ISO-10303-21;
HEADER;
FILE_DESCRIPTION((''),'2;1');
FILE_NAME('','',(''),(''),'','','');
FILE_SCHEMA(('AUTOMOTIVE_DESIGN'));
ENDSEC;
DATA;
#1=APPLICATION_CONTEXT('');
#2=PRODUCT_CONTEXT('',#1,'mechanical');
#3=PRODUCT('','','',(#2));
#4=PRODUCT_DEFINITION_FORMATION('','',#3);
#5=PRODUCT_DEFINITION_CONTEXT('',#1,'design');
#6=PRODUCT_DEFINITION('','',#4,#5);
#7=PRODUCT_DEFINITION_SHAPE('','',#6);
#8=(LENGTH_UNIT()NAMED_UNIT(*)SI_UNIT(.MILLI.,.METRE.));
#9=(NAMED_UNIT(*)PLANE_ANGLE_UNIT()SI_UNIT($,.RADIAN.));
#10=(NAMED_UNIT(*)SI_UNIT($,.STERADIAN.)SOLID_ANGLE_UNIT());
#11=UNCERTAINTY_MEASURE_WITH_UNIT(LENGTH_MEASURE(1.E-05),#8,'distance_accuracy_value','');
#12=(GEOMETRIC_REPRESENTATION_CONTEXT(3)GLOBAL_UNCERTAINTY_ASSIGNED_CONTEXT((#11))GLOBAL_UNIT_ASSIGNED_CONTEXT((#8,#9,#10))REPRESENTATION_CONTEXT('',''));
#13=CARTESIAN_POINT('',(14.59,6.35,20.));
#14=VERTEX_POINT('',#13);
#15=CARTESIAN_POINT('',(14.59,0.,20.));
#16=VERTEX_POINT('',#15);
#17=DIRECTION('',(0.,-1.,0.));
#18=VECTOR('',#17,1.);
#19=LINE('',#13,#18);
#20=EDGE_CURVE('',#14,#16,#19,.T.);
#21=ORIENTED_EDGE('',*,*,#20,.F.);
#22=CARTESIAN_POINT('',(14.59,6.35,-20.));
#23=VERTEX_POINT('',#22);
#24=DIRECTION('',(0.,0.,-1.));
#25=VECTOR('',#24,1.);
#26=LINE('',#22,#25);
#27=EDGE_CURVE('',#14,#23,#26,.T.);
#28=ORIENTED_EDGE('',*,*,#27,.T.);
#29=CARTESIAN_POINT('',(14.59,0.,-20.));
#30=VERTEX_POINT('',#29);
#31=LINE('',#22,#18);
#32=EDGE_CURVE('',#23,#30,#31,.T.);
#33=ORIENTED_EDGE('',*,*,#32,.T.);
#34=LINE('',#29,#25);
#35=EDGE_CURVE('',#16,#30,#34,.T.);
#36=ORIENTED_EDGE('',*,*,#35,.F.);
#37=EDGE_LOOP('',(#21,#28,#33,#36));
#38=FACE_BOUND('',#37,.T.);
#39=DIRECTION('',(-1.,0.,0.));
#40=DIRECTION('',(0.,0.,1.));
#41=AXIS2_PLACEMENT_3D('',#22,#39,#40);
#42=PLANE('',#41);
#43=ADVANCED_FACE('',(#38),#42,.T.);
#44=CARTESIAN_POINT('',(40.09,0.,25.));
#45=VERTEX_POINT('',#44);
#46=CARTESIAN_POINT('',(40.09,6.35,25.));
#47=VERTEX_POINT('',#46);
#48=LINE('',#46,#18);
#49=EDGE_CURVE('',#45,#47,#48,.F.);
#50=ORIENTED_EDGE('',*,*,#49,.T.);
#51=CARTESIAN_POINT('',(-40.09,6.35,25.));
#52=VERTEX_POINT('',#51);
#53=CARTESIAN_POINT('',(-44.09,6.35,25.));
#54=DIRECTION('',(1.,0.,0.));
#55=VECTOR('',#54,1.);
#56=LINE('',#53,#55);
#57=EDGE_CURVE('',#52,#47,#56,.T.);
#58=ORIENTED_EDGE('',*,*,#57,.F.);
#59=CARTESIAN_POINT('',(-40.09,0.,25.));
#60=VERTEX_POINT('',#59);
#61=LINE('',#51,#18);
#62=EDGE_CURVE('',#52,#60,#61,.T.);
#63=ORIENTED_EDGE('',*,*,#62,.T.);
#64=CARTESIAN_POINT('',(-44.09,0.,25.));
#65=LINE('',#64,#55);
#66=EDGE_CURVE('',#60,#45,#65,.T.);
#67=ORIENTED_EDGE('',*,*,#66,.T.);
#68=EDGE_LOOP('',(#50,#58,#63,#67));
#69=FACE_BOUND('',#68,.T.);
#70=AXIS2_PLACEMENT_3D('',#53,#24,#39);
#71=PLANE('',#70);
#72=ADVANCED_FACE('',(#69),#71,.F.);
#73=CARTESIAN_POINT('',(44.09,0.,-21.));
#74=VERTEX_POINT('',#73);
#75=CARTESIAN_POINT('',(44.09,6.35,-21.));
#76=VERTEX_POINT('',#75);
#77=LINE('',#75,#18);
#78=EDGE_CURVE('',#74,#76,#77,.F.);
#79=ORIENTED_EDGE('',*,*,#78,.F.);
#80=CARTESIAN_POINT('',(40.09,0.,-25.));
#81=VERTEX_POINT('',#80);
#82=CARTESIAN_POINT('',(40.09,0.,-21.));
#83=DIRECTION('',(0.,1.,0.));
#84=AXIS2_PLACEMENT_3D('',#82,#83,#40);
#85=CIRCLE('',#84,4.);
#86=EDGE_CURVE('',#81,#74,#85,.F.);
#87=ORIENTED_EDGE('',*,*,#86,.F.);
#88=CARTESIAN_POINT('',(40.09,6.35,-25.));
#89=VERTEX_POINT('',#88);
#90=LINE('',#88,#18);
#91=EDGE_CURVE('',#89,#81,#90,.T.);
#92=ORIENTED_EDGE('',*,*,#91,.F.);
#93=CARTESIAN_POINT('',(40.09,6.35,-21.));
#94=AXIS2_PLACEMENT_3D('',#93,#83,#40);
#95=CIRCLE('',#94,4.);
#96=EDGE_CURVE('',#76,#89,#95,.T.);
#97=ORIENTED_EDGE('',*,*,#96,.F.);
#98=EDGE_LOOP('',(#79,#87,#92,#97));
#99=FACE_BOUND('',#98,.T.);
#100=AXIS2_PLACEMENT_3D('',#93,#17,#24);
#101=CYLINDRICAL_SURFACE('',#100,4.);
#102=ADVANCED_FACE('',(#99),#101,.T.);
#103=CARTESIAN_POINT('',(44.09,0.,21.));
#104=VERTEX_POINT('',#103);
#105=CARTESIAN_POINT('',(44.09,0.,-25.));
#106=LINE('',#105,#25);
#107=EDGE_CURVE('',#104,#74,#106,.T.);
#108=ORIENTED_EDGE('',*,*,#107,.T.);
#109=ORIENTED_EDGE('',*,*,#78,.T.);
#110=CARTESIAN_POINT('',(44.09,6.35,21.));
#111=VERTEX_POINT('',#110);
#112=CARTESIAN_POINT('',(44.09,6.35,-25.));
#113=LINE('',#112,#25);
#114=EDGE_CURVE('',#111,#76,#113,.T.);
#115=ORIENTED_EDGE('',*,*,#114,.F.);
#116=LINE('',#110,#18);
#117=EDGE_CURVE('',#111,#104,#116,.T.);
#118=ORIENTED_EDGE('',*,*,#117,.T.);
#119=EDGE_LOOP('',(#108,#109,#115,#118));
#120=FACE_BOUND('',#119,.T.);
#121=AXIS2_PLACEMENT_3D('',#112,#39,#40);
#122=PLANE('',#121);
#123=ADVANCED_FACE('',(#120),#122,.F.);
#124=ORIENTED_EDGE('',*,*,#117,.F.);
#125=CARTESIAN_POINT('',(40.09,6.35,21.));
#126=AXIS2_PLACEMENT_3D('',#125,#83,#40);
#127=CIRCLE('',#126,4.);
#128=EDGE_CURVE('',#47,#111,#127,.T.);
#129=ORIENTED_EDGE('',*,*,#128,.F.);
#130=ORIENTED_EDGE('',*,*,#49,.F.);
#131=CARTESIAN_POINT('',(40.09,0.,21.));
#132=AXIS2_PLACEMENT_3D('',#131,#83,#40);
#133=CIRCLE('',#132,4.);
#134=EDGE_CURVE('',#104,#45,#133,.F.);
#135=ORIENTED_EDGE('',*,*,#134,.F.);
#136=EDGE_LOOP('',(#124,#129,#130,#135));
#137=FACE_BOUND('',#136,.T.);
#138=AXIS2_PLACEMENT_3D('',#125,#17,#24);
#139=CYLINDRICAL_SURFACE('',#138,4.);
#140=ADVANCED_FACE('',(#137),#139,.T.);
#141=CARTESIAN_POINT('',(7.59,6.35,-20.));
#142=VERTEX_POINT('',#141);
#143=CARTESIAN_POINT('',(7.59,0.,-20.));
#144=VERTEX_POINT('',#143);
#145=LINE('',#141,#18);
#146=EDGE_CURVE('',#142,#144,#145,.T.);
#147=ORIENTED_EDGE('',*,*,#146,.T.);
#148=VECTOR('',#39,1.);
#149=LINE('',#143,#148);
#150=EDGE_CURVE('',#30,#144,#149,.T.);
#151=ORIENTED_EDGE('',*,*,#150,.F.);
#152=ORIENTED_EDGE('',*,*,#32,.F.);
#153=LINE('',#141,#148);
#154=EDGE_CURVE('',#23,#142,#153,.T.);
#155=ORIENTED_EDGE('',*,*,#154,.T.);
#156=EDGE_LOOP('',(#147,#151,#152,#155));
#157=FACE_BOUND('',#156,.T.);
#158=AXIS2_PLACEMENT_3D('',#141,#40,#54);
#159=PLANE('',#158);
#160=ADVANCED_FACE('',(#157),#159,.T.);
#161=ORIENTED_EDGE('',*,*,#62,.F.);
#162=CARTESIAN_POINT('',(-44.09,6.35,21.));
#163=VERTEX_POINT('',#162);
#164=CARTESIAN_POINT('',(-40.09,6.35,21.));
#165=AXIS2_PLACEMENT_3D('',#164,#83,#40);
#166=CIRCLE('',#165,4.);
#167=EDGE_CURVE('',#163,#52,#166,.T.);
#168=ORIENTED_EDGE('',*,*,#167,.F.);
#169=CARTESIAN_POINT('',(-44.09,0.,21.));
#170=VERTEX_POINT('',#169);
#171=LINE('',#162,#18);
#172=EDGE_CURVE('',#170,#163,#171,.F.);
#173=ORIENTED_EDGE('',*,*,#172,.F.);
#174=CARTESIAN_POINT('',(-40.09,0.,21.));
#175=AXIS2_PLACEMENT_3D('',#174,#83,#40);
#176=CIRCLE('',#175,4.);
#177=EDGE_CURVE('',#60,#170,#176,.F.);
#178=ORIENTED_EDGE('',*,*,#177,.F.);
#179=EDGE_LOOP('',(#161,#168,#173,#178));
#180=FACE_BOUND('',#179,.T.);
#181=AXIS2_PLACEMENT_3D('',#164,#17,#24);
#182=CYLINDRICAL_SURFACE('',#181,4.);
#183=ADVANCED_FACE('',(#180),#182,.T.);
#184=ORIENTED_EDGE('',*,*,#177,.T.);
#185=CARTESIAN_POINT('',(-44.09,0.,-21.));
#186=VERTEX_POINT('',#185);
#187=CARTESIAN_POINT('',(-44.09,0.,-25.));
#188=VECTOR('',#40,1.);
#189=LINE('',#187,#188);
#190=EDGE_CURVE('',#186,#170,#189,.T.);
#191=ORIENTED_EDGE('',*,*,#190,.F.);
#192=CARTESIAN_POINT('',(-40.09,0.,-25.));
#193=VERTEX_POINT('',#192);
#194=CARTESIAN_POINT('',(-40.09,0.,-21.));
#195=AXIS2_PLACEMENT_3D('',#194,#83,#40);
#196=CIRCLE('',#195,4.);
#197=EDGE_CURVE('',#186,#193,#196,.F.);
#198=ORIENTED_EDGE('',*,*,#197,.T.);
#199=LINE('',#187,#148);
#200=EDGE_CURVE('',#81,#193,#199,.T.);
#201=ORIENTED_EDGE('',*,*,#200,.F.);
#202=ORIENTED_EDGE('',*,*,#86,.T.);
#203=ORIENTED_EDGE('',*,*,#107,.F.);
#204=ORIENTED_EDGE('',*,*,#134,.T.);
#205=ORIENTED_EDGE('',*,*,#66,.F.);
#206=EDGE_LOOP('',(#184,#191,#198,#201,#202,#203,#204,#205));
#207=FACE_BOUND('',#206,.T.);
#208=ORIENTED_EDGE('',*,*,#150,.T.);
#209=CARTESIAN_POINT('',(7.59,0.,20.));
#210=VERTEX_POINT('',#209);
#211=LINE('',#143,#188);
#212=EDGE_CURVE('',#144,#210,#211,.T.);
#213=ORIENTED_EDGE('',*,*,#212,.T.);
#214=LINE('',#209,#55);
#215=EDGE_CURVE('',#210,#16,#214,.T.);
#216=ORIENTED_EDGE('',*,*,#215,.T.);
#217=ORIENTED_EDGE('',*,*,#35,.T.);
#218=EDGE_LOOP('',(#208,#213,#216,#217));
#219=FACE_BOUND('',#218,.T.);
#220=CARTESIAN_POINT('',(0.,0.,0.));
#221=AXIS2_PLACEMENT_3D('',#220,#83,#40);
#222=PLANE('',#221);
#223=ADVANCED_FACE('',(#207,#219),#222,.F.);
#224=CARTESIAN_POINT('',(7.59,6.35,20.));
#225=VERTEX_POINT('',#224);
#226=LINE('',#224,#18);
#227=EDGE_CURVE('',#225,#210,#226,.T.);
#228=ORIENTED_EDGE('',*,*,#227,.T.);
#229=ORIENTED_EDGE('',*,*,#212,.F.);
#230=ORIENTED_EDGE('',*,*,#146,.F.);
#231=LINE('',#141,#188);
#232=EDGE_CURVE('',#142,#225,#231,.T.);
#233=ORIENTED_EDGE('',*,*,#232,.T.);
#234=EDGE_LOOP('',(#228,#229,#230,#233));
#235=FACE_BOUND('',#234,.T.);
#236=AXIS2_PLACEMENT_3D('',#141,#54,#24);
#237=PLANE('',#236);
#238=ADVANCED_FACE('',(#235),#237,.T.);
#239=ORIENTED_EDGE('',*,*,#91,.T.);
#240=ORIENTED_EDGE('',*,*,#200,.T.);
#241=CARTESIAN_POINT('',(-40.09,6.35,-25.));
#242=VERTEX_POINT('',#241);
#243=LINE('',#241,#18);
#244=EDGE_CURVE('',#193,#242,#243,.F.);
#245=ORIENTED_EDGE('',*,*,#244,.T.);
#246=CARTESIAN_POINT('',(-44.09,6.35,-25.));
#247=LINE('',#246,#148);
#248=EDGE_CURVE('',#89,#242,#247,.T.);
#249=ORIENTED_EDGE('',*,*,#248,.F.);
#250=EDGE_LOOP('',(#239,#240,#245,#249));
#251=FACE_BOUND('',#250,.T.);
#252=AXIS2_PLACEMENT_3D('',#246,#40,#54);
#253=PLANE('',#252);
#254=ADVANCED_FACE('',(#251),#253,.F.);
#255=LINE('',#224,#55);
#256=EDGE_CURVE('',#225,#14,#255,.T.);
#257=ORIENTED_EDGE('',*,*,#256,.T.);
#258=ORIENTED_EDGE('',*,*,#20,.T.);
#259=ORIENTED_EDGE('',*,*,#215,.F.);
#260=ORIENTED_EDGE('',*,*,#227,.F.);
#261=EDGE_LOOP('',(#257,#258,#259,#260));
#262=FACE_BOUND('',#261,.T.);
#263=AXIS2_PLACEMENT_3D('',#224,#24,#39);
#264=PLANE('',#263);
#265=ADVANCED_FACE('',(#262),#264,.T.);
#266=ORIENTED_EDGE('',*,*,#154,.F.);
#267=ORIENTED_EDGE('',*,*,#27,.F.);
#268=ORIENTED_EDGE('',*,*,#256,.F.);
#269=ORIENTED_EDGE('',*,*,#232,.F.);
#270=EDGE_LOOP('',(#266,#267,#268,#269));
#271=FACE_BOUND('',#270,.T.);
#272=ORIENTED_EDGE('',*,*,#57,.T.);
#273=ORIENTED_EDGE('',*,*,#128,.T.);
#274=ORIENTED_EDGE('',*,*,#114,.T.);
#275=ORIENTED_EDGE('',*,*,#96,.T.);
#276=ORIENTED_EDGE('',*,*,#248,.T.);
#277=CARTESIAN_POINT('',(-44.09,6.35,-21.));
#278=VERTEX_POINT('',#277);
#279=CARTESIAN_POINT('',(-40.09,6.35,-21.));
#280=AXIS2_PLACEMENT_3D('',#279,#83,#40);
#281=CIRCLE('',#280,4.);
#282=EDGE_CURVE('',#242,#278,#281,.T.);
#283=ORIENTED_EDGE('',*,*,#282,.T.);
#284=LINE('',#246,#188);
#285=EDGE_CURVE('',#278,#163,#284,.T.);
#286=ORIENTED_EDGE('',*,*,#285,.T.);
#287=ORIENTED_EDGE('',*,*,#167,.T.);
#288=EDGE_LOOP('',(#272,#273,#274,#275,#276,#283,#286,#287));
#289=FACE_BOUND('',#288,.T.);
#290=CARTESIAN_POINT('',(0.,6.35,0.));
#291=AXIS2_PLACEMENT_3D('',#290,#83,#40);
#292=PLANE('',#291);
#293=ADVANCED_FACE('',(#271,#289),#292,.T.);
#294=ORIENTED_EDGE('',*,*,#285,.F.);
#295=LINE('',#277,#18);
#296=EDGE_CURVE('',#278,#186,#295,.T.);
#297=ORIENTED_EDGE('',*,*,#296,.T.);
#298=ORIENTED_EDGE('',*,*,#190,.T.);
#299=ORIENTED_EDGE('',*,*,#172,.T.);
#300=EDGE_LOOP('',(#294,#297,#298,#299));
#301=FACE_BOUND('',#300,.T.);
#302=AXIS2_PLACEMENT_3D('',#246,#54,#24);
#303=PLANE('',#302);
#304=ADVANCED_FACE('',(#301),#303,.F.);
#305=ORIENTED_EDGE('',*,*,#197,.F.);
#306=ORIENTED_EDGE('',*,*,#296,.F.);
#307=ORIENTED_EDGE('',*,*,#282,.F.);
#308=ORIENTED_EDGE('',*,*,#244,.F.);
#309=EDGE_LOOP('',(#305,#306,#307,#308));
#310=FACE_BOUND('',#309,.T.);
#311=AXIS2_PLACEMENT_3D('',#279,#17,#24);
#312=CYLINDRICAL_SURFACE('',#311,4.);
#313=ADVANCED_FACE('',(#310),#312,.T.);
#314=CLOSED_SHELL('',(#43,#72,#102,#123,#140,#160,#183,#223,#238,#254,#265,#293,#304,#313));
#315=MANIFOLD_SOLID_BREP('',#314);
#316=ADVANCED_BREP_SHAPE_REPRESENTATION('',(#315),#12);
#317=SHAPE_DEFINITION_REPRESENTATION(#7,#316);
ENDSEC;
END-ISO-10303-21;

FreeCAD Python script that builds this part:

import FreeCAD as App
import Part
import Sketcher

V = App.Vector


def edges_at(feature, points):
    """Names of the edges that pass closest to the given points."""
    edges = feature.Shape.Edges
    near = lambda p: min(range(len(edges)), key=lambda i: edges[i].distToShape(Part.Vertex(*p))[0])
    return sorted({f"Edge{near(p) + 1}" for p in points})


def add_polygon(sketch, points):
    """Adds a closed chain of lines whose ends are joined by coincident constraints."""
    first, n = sketch.GeometryCount, len(points)
    for a, b in zip(points, points[1:] + points[:1]):
        sketch.addGeometry(Part.LineSegment(App.Vector(*a, 0), App.Vector(*b, 0)), False)
    for i in range(n):
        sketch.addConstraint(Sketcher.Constraint("Coincident", first + i, 2, first + (i + 1) % n, 1))

doc = App.newDocument("Part")
params = doc.addObject("Spreadsheet::Sheet", "Params")
for row, (alias, value) in enumerate([
    ("sketch1_width", "7 mm"),
    ("sketch1_height", "50 mm"),
    ("sketch1_height2", "40 mm"),
    ("sketch1_width2", "88.18 mm"),
    ("pad1_length", "6.35 mm"),
    ("fillet_radius", "4 mm"),
], start=1):
    params.set(f"A{row}", alias)
    params.set(f"B{row}", "=" + value)
    params.setAlias(f"B{row}", alias)

body = doc.addObject("PartDesign::Body", "Body")

# Sketch on XZ plane
sketch1 = doc.addObject("Sketcher::SketchObject", "Sketch")
body.addObject(sketch1)
sketch1.AttachmentSupport = (doc.XZ_Plane, [""])
sketch1.MapMode = "FlatFace"
add_polygon(sketch1, [(-44, -25), (-44, 25), (44, 25), (44, -25)])  # lines 0-3
add_polygon(sketch1, [(15, 20), (8, 20), (8, -20), (15, -20)])  # lines 4-7
sketch1.addConstraint([
    Sketcher.Constraint("Vertical", 0),
    Sketcher.Constraint("Horizontal", 1),
    Sketcher.Constraint("Vertical", 2),
    Sketcher.Constraint("Horizontal", 3),
    Sketcher.Constraint("Horizontal", 4),
    Sketcher.Constraint("Vertical", 5),
    Sketcher.Constraint("Horizontal", 6),
    Sketcher.Constraint("Vertical", 7),
    Sketcher.Constraint("Symmetric", 0, 2, 2, 2, -1, 1),
    Sketcher.Constraint("DistanceX", 4, 2, 4, 1, 7.0),
    Sketcher.Constraint("DistanceY", 0, 1, 0, 2, 50.0),
    Sketcher.Constraint("DistanceY", 5, 2, 5, 1, 40.0),
    Sketcher.Constraint("DistanceY", -1, 1, 4, 2, 20.0),
    Sketcher.Constraint("DistanceX", 1, 1, 1, 2, 88.18),
    Sketcher.Constraint("DistanceX", 4, 2, 1, 2, 36.5),
])
sketch1.setExpression("Constraints[17]", "Params.sketch1_width")
sketch1.setExpression("Constraints[18]", "Params.sketch1_height")
sketch1.setExpression("Constraints[19]", "Params.sketch1_height2")
sketch1.setExpression("Constraints[21]", "Params.sketch1_width2")
pad1 = doc.addObject("PartDesign::Pad", "Pad")
body.addObject(pad1)
pad1.Profile = sketch1
pad1.setExpression("Length", "Params.pad1_length")
pad1.Reversed = True
doc.recompute()

fillet = doc.addObject("PartDesign::Fillet", "Fillet")
body.addObject(fillet)
fillet.Base = (pad1, edges_at(pad1, [
    (44.09, 3.175, 25),
    (-44.09, 3.175, 25),
    (-44.09, 3.175, -25),
    (44.09, 3.175, -25),
]))
fillet.setExpression("Radius", "Params.fillet_radius")

doc.recompute()
